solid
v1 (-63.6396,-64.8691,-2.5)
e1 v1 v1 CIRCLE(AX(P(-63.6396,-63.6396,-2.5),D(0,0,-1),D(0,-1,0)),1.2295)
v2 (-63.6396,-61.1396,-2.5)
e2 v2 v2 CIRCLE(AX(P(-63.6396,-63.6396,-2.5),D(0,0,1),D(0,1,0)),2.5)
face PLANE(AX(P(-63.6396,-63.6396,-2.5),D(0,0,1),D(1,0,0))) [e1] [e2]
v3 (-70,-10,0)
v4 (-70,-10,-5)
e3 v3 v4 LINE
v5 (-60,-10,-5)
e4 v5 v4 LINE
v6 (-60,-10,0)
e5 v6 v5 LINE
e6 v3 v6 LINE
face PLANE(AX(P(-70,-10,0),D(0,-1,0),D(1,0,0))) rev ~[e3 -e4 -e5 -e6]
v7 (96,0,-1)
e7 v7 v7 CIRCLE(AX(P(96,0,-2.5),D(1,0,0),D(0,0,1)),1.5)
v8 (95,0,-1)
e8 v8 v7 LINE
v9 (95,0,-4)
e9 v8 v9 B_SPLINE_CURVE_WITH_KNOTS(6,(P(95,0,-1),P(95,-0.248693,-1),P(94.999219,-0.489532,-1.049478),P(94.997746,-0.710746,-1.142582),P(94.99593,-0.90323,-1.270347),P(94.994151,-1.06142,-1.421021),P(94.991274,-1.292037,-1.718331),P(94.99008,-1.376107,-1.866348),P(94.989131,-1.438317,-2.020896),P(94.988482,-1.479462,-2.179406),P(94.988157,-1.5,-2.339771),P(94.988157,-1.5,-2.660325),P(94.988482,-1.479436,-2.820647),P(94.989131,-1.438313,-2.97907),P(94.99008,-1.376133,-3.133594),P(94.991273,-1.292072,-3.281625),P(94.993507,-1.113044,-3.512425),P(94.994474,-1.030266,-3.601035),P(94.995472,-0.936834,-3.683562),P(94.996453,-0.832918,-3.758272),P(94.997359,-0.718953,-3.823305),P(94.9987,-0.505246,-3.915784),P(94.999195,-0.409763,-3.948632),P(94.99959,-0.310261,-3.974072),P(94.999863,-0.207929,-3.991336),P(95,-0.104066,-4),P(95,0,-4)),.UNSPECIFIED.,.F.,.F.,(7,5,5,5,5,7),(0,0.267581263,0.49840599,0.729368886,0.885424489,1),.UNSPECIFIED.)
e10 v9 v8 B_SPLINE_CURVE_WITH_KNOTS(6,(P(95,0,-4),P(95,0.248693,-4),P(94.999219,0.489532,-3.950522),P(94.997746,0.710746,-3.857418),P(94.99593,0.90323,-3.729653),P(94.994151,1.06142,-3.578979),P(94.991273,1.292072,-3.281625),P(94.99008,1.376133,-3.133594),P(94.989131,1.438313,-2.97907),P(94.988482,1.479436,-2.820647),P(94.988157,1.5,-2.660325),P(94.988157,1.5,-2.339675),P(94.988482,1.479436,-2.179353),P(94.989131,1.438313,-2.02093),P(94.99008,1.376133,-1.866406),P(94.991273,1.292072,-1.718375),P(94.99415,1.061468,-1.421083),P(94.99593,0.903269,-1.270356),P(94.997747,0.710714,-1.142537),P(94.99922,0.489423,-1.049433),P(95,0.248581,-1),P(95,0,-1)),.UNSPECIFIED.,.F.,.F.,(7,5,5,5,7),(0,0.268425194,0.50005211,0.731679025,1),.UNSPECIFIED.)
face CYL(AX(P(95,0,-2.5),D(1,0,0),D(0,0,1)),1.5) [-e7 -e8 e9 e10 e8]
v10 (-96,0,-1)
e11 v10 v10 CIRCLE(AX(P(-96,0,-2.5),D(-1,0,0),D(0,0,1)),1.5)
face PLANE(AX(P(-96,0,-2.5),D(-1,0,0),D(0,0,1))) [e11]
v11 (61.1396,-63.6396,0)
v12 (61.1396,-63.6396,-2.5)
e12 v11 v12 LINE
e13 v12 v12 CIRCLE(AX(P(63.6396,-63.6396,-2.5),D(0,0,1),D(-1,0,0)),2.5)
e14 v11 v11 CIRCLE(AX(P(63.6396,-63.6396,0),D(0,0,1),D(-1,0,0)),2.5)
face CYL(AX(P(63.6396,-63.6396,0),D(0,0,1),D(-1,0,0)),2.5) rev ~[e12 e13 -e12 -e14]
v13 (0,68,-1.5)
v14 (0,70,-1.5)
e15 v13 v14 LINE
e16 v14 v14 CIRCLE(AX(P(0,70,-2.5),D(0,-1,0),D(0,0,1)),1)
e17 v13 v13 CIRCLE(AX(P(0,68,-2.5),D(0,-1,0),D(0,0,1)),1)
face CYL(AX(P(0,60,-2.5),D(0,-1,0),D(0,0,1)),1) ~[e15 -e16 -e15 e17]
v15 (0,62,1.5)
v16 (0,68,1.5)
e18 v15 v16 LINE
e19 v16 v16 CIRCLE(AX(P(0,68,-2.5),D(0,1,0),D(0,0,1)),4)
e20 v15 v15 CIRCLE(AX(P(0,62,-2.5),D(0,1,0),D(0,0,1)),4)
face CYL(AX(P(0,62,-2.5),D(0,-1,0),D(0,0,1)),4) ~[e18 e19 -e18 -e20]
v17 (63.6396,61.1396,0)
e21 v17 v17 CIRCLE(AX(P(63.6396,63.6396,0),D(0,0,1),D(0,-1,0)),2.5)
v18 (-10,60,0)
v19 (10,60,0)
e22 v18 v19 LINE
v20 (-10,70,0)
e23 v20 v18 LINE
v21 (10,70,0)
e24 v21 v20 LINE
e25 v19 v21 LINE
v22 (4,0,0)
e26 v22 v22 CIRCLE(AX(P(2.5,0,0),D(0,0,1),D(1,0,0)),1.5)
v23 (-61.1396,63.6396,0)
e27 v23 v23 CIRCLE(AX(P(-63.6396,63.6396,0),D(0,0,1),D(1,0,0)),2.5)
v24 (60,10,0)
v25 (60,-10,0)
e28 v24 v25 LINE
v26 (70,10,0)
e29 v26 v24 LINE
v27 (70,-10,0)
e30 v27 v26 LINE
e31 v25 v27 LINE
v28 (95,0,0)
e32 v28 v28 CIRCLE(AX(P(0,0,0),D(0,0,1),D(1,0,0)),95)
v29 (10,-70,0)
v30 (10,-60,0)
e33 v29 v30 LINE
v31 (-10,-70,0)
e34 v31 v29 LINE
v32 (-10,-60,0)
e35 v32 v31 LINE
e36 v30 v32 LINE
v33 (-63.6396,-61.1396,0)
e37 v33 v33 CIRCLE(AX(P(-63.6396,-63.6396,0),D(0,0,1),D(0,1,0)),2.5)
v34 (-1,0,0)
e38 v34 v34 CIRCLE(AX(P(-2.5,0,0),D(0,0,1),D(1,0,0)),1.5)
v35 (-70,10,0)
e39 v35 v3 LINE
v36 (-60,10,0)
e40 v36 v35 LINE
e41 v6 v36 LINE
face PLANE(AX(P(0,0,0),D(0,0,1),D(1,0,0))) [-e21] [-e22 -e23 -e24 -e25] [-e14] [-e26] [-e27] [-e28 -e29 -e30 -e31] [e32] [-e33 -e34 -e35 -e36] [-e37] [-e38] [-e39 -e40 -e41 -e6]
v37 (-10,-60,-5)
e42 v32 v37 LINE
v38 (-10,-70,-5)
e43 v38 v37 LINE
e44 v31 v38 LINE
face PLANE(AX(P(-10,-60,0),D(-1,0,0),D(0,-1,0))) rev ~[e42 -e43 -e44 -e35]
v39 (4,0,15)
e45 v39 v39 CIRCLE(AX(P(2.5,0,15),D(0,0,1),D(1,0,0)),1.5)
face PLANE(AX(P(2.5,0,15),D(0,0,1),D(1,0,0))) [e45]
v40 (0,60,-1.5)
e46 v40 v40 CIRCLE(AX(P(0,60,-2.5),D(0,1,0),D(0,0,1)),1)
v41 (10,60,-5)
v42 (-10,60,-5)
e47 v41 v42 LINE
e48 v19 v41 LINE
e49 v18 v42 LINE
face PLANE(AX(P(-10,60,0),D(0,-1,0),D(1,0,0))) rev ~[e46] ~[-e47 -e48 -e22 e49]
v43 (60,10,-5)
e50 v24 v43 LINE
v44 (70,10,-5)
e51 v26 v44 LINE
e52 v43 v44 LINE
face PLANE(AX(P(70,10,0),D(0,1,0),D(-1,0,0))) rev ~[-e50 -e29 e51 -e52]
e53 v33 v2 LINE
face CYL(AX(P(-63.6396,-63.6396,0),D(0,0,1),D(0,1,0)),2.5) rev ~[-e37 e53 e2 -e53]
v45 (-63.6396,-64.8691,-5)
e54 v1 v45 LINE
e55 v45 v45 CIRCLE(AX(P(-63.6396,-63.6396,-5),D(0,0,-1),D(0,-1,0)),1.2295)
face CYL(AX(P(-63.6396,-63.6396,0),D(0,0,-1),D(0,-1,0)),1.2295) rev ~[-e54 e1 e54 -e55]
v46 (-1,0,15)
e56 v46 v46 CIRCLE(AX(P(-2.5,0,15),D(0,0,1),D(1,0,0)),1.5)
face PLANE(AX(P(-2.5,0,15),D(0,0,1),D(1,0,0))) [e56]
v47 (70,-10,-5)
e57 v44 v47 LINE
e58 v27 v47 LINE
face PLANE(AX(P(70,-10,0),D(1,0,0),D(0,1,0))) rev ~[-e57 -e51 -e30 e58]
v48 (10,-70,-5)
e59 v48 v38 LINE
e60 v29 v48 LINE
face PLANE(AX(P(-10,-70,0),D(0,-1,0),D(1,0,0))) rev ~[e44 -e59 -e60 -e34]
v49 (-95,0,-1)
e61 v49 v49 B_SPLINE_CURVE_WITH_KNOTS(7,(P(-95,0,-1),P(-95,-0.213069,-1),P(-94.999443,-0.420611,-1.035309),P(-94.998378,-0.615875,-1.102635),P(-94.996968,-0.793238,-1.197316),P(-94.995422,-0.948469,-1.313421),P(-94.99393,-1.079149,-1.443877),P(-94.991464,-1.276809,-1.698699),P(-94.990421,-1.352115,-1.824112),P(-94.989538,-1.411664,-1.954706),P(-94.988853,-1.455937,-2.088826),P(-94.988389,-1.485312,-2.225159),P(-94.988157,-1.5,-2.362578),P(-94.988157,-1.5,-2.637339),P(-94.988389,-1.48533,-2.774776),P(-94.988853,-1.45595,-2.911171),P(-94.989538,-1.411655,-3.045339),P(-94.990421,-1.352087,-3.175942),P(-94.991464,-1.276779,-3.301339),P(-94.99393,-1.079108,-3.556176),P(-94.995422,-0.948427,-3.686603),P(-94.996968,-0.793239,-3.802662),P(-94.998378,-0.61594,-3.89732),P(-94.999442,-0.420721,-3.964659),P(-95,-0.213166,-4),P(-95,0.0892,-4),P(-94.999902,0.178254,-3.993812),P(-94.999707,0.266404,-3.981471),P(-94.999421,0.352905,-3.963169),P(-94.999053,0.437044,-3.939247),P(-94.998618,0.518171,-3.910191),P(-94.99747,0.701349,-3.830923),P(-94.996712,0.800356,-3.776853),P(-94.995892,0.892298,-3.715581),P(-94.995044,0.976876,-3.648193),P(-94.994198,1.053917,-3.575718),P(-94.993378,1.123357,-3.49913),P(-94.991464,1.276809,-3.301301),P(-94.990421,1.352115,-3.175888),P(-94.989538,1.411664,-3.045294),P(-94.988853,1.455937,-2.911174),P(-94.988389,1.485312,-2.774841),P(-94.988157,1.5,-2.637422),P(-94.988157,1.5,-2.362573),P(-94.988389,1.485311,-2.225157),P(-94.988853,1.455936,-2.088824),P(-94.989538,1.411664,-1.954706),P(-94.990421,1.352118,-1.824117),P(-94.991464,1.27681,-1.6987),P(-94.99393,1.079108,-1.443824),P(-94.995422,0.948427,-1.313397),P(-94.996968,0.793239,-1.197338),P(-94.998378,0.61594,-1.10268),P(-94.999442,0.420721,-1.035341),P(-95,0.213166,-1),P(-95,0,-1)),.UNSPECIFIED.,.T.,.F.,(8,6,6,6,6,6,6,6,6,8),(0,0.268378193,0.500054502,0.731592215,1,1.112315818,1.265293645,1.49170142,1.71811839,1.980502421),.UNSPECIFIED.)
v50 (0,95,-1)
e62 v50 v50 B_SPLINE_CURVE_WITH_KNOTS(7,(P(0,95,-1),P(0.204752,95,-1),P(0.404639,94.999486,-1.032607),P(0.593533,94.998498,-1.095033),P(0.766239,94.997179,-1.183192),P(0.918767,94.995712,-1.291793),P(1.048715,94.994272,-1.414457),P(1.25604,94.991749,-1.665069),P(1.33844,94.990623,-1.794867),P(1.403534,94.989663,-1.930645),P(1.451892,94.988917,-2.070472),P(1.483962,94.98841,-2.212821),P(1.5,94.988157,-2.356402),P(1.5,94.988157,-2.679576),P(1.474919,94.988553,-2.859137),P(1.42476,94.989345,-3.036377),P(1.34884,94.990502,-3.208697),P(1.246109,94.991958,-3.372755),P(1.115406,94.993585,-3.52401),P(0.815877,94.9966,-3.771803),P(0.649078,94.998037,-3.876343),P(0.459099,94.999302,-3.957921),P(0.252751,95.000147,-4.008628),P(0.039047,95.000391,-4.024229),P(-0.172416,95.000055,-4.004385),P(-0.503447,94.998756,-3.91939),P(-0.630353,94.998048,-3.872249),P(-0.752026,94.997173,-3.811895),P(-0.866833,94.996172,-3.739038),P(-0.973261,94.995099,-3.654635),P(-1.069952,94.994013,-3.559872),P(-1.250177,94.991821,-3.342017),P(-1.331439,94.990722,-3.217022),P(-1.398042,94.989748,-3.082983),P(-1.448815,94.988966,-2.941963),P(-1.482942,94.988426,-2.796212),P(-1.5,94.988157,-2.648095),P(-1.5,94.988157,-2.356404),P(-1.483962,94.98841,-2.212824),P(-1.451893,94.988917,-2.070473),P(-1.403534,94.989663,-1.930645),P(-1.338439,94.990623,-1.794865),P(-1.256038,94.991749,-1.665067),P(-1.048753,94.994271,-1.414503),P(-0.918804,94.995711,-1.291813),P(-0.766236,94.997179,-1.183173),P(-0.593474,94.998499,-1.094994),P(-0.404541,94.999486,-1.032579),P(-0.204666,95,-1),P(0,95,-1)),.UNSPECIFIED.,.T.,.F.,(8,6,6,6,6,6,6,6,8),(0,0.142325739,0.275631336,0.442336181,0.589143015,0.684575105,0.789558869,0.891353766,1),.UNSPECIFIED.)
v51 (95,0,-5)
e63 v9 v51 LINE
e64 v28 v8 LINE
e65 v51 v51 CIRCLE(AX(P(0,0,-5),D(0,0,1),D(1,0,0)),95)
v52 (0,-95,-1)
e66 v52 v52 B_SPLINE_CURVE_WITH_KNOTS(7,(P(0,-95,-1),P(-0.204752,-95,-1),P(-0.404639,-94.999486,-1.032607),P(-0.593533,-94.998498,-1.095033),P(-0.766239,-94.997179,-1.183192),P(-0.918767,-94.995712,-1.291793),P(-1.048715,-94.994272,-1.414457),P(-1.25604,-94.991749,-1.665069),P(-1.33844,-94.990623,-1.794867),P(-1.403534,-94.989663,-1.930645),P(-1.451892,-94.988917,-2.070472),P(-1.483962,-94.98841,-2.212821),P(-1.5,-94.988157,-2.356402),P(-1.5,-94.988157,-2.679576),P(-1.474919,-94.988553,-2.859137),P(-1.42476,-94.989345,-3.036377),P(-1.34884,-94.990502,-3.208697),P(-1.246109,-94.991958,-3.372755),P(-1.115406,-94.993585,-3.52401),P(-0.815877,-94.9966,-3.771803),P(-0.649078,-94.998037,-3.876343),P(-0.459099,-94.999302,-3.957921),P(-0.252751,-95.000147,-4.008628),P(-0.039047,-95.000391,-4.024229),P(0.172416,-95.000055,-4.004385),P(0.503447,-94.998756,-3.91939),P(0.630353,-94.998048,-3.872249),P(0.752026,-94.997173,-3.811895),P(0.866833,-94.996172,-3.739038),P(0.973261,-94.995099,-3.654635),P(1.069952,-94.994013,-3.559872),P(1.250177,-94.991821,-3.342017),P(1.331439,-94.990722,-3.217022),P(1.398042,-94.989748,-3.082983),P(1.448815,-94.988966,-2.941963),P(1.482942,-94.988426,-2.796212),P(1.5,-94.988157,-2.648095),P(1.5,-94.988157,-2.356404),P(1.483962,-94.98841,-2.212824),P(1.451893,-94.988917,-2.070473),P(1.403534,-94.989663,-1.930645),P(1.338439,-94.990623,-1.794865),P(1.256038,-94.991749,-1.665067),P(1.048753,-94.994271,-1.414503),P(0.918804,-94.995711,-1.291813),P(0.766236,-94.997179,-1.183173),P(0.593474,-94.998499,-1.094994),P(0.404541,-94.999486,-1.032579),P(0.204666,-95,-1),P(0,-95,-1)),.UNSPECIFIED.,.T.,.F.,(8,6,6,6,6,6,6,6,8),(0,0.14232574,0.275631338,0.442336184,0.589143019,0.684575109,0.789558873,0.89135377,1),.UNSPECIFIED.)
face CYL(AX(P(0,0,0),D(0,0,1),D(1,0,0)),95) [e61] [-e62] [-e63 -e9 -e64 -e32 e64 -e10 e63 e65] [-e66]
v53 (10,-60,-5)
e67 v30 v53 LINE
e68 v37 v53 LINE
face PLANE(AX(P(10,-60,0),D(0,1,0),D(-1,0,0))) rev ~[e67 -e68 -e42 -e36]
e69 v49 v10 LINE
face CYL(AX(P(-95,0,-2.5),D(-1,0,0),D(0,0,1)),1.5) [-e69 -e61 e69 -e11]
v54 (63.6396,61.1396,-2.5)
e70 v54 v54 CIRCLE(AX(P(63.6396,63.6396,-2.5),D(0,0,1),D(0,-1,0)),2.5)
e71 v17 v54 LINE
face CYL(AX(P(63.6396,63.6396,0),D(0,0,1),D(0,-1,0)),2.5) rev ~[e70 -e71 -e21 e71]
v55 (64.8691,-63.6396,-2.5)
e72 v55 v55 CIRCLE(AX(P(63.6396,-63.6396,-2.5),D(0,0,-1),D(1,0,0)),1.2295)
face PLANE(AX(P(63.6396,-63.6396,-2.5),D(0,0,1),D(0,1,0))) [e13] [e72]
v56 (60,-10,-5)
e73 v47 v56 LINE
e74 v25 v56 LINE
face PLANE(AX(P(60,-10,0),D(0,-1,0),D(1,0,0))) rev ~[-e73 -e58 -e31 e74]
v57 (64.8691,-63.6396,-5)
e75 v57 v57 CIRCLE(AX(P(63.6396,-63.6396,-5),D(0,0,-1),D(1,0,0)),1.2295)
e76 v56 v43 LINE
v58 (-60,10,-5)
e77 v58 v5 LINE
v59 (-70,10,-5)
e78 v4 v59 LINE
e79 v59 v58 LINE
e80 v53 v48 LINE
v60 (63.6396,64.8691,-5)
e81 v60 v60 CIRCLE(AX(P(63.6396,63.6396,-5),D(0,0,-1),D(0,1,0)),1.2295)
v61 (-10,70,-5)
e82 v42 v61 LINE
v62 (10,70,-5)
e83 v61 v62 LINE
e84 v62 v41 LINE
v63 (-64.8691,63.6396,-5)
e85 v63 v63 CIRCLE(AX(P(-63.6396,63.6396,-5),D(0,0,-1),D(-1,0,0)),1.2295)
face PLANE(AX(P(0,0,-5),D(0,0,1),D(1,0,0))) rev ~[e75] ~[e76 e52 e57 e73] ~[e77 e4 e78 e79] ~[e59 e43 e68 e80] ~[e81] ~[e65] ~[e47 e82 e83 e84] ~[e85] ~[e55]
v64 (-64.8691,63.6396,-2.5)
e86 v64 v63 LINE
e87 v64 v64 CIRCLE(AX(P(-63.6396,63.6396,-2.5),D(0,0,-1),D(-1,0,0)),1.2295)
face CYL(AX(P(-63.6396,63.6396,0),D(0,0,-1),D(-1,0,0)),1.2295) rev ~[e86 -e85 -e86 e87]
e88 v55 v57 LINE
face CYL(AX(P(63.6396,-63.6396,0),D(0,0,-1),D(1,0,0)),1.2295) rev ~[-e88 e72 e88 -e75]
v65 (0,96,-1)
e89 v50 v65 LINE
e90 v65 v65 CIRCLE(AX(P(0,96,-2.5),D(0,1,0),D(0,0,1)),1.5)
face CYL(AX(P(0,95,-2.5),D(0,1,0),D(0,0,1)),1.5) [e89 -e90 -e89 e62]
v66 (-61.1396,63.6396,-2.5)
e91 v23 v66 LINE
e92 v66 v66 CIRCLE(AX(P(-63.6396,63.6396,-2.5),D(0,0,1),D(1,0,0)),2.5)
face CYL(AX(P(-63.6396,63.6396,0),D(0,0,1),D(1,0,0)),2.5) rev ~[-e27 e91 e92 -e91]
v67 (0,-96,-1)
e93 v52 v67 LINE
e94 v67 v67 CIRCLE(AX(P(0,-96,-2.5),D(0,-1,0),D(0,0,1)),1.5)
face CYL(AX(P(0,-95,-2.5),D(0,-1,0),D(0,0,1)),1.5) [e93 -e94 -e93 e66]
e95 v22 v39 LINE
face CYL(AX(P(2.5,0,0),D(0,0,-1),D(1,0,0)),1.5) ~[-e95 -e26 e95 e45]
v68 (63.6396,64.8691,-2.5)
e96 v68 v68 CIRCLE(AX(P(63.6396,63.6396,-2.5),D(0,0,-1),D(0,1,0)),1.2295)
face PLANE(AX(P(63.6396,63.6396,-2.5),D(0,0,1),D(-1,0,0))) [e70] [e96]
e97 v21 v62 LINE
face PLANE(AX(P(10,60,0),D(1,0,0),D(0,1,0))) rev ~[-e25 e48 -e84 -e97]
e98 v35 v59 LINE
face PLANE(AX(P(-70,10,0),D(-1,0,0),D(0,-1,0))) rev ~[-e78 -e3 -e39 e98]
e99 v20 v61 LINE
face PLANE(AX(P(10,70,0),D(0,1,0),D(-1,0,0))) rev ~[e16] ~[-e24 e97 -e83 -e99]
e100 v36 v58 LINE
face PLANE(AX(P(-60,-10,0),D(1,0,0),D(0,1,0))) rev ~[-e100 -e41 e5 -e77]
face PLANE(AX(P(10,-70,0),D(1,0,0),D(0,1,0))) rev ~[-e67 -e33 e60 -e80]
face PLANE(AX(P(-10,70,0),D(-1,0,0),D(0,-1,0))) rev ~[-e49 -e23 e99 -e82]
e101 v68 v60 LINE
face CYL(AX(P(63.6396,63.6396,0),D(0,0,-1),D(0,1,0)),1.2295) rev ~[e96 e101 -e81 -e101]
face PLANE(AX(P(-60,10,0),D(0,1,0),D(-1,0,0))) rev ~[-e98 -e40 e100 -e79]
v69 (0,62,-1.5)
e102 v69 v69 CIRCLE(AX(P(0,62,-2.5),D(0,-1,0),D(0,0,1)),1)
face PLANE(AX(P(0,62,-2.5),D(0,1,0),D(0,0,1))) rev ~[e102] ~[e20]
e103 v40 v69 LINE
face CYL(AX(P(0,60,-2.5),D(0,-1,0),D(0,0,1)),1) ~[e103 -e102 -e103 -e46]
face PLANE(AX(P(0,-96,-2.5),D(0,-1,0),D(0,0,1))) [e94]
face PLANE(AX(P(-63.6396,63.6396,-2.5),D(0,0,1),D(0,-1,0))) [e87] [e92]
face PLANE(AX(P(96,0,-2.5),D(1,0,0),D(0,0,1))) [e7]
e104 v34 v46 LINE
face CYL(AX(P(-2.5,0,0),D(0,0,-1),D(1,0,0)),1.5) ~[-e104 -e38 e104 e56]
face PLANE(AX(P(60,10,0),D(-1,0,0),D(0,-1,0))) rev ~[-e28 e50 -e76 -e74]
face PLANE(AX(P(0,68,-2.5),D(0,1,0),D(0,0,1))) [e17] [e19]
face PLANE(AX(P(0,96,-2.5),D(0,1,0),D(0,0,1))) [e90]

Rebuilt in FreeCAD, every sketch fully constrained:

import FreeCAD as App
import Part
import Sketcher

V = App.Vector
Q = App.Units.Quantity

doc = App.newDocument("Part")
body = doc.addObject("PartDesign::Body", "Body")

# Sketch on XY plane
sketch1 = body.newObject("Sketcher::SketchObject", "Sketch")
sketch1.AttachmentSupport = (doc.getObject("XY_Plane"), [""])
sketch1.MapMode = "FlatFace"
sketch1.addGeometry(Part.Circle(V(0, 0, 0), V(0, 0, 1), 95), False)
sketch1.addConstraint([
    Sketcher.Constraint("Coincident", 0, 3, -1, 1),
    Sketcher.Constraint("Diameter", 0, Q("190 mm")),
])
pad1 = body.newObject("PartDesign::Pad", "Pad")
pad1.Profile = sketch1
pad1.Length = 5
pad1.Reversed = True

# Sketch on XY plane
sketch2 = body.newObject("Sketcher::SketchObject", "Sketch001")
sketch2.AttachmentSupport = (doc.getObject("XY_Plane"), [""])
sketch2.MapMode = "FlatFace"
sketch2.addGeometry([
    Part.Circle(V(-2.5, 0, 0), V(0, 0, 1), 1.5),
    Part.Circle(V(2.5, 0, 0), V(0, 0, 1), 1.5),
], False)
sketch2.addConstraint([
    Sketcher.Constraint("Equal", 0, 1),
    Sketcher.Constraint("Symmetric", 0, 3, 1, 3, -1, 1),
    Sketcher.Constraint("PointOnObject", 0, 3, -1),
    Sketcher.Constraint("Diameter", 0, Q("3 mm")),
    Sketcher.Constraint("DistanceX", 0, 3, 1, 3, Q("5 mm")),
])
pad2 = body.newObject("PartDesign::Pad", "Pad001")
pad2.Profile = sketch2
pad2.Length = 15

# Sketch on XY plane
sketch3 = body.newObject("Sketcher::SketchObject", "Sketch002")
sketch3.AttachmentSupport = (doc.getObject("XY_Plane"), [""])
sketch3.MapMode = "FlatFace"
sketch3.addGeometry([
    Part.LineSegment(V(-10, 70, 0), V(-10, 60, 0)),
    Part.LineSegment(V(-10, 60, 0), V(10, 60, 0)),
    Part.LineSegment(V(10, 60, 0), V(10, 70, 0)),
    Part.LineSegment(V(10, 70, 0), V(-10, 70, 0)),
], False)
sketch3.addConstraint([
    Sketcher.Constraint("Coincident", 0, 2, 1, 1),
    Sketcher.Constraint("Coincident", 1, 2, 2, 1),
    Sketcher.Constraint("Coincident", 2, 2, 3, 1),
    Sketcher.Constraint("Coincident", 3, 2, 0, 1),
    Sketcher.Constraint("Vertical", 0),
    Sketcher.Constraint("Horizontal", 1),
    Sketcher.Constraint("Vertical", 2),
    Sketcher.Constraint("Horizontal", 3),
    Sketcher.Constraint("DistanceX", 1, 1, 1, 2, Q("20 mm")),
    Sketcher.Constraint("DistanceY", 0, 2, 0, 1, Q("10 mm")),
    Sketcher.Constraint("DistanceX", 0, 2, -1, 1, Q("10 mm")),
    Sketcher.Constraint("DistanceY", -1, 1, 0, 2, Q("60 mm")),
])
pocket1 = body.newObject("PartDesign::Pocket", "Pocket")
pocket1.Profile = sketch3
pocket1.Type = "UpToFirst"

# Sketch on XZ plane
sketch4 = body.newObject("Sketcher::SketchObject", "Sketch003")
sketch4.AttachmentSupport = (doc.getObject("XZ_Plane"), [""])
sketch4.MapMode = "FlatFace"
sketch4.AttachmentOffset = App.Placement(V(0, 0, -60), App.Rotation())
sketch4.addGeometry(Part.Circle(V(0, -2.5, 0), V(0, 0, 1), 1), False)
sketch4.addConstraint([
    Sketcher.Constraint("PointOnObject", 0, 3, -2),
    Sketcher.Constraint("Diameter", 0, Q("2 mm")),
    Sketcher.Constraint("DistanceY", 0, 3, -1, 1, Q("2.5 mm")),
])
pad3 = body.newObject("PartDesign::Pad", "Pad002")
pad3.Profile = sketch4
pad3.Length = 16
pad3.Reversed = True

# Sketch on XZ plane
sketch5 = body.newObject("Sketcher::SketchObject", "Sketch004")
sketch5.AttachmentSupport = (doc.getObject("XZ_Plane"), [""])
sketch5.MapMode = "FlatFace"
sketch5.AttachmentOffset = App.Placement(V(0, 0, -62), App.Rotation())
sketch5.addGeometry(Part.Circle(V(0, -2.5, 0), V(0, 0, 1), 4), False)
sketch5.addConstraint([
    Sketcher.Constraint("PointOnObject", 0, 3, -2),
    Sketcher.Constraint("Diameter", 0, Q("8 mm")),
    Sketcher.Constraint("DistanceY", 0, 3, -1, 1, Q("2.5 mm")),
])
pad4 = body.newObject("PartDesign::Pad", "Pad003")
pad4.Profile = sketch5
pad4.Length = 6
pad4.Reversed = True

# Sketch on XY plane
sketch6 = body.newObject("Sketcher::SketchObject", "Sketch005")
sketch6.AttachmentSupport = (doc.getObject("XY_Plane"), [""])
sketch6.MapMode = "FlatFace"
sketch6.addGeometry(Part.Circle(V(-63.6, -63.6, 0), V(0, 0, 1), 1.2), False)
sketch6.addConstraint([
    Sketcher.Constraint("Diameter", 0, Q("2.459 mm")),
    Sketcher.Constraint("DistanceX", 0, 3, -1, 1, Q("63.6396 mm")),
    Sketcher.Constraint("DistanceY", 0, 3, -1, 1, Q("63.6396 mm")),
])
doc.recompute()
hole = body.newObject("PartDesign::Hole", "Hole")
hole.Profile = sketch6
hole.ThreadType = "None"
hole.Diameter = 2.459
hole.DepthType = "Dimension"
hole.Depth = 11
hole.DrillPoint = "Flat"

# Sketch on XY plane
sketch7 = body.newObject("Sketcher::SketchObject", "Sketch006")
sketch7.AttachmentSupport = (doc.getObject("XY_Plane"), [""])
sketch7.MapMode = "FlatFace"
sketch7.addGeometry(Part.Circle(V(-63.6, -63.6, 0), V(0, 0, 1), 2.5), False)
sketch7.addConstraint([
    Sketcher.Constraint("Diameter", 0, Q("5 mm")),
    Sketcher.Constraint("DistanceX", 0, 3, -1, 1, Q("63.6396 mm")),
    Sketcher.Constraint("DistanceY", 0, 3, -1, 1, Q("63.6396 mm")),
])
pocket2 = body.newObject("PartDesign::Pocket", "Pocket001")
pocket2.Profile = sketch7
pocket2.Length = 2.5
doc.recompute()

polarpattern = body.newObject("PartDesign::PolarPattern", "PolarPattern")
polarpattern.Originals = [pocket2, hole]
polarpattern.Axis = (doc.getObject("Z_Axis"), [""])
polarpattern.Angle = 360
polarpattern.Occurrences = 4
body.Tip = polarpattern

# Sketch on XZ plane
sketch8 = body.newObject("Sketcher::SketchObject", "Sketch007")
sketch8.AttachmentSupport = (doc.getObject("XZ_Plane"), [""])
sketch8.MapMode = "FlatFace"
sketch8.AttachmentOffset = App.Placement(V(0, 0, -95), App.Rotation())
sketch8.addGeometry(Part.Circle(V(0, -2.5, 0), V(0, 0, 1), 1.5), False)
sketch8.addConstraint([
    Sketcher.Constraint("PointOnObject", 0, 3, -2),
    Sketcher.Constraint("Diameter", 0, Q("3 mm")),
    Sketcher.Constraint("DistanceY", 0, 3, -1, 1, Q("2.5 mm")),
])
pad5 = body.newObject("PartDesign::Pad", "Pad004")
pad5.Profile = sketch8
pad5.Type = "TwoLengths"
pad5.Length = 1.2757
pad5.Length2 = 1
doc.recompute()

polarpattern2 = body.newObject("PartDesign::PolarPattern", "PolarPattern001")
polarpattern2.Originals = [pad5]
polarpattern2.Axis = (doc.getObject("Z_Axis"), [""])
polarpattern2.Angle = 360
polarpattern2.Occurrences = 4
body.Tip = polarpattern2
doc.recompute()

polarpattern3 = body.newObject("PartDesign::PolarPattern", "PolarPattern002")
polarpattern3.Originals = [pocket1]
polarpattern3.Axis = (doc.getObject("Z_Axis"), [""])
polarpattern3.Angle = 360
polarpattern3.Occurrences = 4
body.Tip = polarpattern3

doc.recompute()
